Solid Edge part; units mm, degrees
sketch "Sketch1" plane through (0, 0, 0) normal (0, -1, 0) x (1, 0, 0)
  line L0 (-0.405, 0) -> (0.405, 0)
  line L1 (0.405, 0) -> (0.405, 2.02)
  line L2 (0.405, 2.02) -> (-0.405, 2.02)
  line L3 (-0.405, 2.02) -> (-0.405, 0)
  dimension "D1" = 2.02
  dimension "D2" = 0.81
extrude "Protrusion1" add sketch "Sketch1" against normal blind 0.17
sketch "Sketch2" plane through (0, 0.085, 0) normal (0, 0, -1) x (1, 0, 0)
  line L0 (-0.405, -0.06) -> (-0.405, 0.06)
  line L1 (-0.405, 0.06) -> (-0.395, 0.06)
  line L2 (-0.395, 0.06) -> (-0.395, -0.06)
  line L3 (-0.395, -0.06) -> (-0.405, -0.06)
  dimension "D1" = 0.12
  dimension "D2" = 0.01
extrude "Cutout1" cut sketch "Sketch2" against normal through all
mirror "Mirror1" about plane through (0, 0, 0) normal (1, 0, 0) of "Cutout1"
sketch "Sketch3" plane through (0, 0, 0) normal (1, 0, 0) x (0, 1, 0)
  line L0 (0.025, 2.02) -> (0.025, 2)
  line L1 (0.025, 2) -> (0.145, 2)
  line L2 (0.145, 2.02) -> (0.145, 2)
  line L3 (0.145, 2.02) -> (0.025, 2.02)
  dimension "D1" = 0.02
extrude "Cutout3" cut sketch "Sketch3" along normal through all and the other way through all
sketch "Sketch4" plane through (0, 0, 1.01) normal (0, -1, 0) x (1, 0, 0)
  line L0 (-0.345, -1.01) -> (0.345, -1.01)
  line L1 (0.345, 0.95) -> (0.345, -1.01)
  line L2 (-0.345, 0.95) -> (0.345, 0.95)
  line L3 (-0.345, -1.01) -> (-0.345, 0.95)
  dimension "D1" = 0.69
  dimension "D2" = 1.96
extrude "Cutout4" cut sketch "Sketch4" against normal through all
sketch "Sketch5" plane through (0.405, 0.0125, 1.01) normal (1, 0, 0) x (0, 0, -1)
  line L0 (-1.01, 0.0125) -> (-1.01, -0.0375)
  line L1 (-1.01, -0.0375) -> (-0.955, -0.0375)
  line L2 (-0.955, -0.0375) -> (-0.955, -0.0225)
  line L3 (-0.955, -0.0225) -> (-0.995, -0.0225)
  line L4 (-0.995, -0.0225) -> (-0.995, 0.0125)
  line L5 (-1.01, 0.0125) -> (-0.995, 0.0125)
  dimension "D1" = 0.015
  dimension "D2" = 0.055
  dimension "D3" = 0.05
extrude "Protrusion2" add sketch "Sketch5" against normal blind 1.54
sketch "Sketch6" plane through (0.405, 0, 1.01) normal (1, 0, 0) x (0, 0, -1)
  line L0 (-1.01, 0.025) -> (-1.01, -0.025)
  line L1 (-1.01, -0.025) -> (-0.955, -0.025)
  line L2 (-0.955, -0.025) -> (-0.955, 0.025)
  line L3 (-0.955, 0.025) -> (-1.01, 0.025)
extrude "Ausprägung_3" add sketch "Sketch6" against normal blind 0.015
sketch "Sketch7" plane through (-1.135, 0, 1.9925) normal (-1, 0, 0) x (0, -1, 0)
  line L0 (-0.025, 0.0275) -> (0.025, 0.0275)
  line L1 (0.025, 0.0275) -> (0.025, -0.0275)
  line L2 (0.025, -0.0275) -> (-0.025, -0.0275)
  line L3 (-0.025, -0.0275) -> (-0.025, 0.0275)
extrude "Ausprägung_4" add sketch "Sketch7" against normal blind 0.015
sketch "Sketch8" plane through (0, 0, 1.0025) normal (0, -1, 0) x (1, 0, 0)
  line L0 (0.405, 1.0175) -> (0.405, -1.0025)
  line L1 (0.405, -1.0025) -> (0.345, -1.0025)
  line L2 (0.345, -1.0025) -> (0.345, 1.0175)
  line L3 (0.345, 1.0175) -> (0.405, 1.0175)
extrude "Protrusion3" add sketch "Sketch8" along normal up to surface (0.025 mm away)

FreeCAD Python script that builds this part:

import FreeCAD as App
import Part
import Sketcher


def add_polygon(sketch, points):
    """Adds a closed chain of lines whose ends are joined by coincident constraints."""
    first, n = sketch.GeometryCount, len(points)
    for a, b in zip(points, points[1:] + points[:1]):
        sketch.addGeometry(Part.LineSegment(App.Vector(*a, 0), App.Vector(*b, 0)), False)
    for i in range(n):
        sketch.addConstraint(Sketcher.Constraint("Coincident", first + i, 2, first + (i + 1) % n, 1))

doc = App.newDocument("Part")
body = doc.addObject("PartDesign::Body", "Body")

sketch1 = body.newObject("Sketcher::SketchObject", "Sketch")
sketch1.AttachmentSupport = (doc.getObject("XZ_Plane"), [""])
sketch1.MapMode = "FlatFace"
add_polygon(sketch1, [(-0.4, 2), (-0.4, 0), (0.4, 0), (0.4, 2)])
sketch1.addConstraint(Sketcher.Constraint("Vertical", 0))
sketch1.addConstraint(Sketcher.Constraint("Horizontal", 1))
sketch1.addConstraint(Sketcher.Constraint("Vertical", 2))
sketch1.addConstraint(Sketcher.Constraint("Horizontal", 3))
sketch1.addConstraint(Sketcher.Constraint("Symmetric", 0, 2, 1, 2, -1, 1))
sketch1.addConstraint(Sketcher.Constraint("DistanceX", 0, 2, -1, 1, 0.405))
sketch1.addConstraint(Sketcher.Constraint("DistanceY", 0, 2, 0, 1, 2.02))
pad1 = body.newObject("PartDesign::Pad", "Pad")
pad1.Profile = sketch1
pad1.Length = 0.17
pad1.Reversed = True

sketch2 = body.newObject("Sketcher::SketchObject", "Sketch001")
sketch2.AttachmentSupport = (doc.getObject("XY_Plane"), [""])
sketch2.MapMode = "FlatFace"
add_polygon(sketch2, [(-0.405, 0.025), (-0.405, 0.145), (-0.395, 0.145), (-0.395, 0.025)])
sketch2.addConstraint(Sketcher.Constraint("Vertical", 0))
sketch2.addConstraint(Sketcher.Constraint("Horizontal", 1))
sketch2.addConstraint(Sketcher.Constraint("Vertical", 2))
sketch2.addConstraint(Sketcher.Constraint("Horizontal", 3))
sketch2.addConstraint(Sketcher.Constraint("DistanceX", 0, 2, -1, 1, 0.405))
sketch2.addConstraint(Sketcher.Constraint("DistanceX", 1, 2, -1, 1, 0.395))
sketch2.addConstraint(Sketcher.Constraint("DistanceY", 0, 1, 0, 2, 0.12))
sketch2.addConstraint(Sketcher.Constraint("DistanceY", -1, 1, 0, 2, 0.145))
pocket1 = body.newObject("PartDesign::Pocket", "Pocket")
pocket1.Profile = sketch2
pocket1.Type = "ThroughAll"
pocket1.Reversed = True
doc.recompute()

mirrored = body.newObject("PartDesign::Mirrored", "Mirrored")
mirrored.Originals = [pocket1]
mirrored.MirrorPlane = (doc.getObject("YZ_Plane"), [""])
body.Tip = mirrored

sketch3 = body.newObject("Sketcher::SketchObject", "Sketch002")
sketch3.AttachmentSupport = (doc.getObject("YZ_Plane"), [""])
sketch3.MapMode = "FlatFace"
add_polygon(sketch3, [(0.145, 2.02), (0.025, 2.02), (0.025, 2), (0.145, 2)])
sketch3.addConstraint(Sketcher.Constraint("Horizontal", 0))
sketch3.addConstraint(Sketcher.Constraint("Vertical", 1))
sketch3.addConstraint(Sketcher.Constraint("Horizontal", 2))
sketch3.addConstraint(Sketcher.Constraint("Vertical", 3))
sketch3.addConstraint(Sketcher.Constraint("DistanceX", -1, 1, 2, 2, 0.145))
sketch3.addConstraint(Sketcher.Constraint("DistanceY", -1, 1, 1, 2, 2.0))
sketch3.addConstraint(Sketcher.Constraint("DistanceX", 0, 2, 0, 1, 0.12))
sketch3.addConstraint(Sketcher.Constraint("DistanceY", 1, 2, 1, 1, 0.02))
pocket2 = body.newObject("PartDesign::Pocket", "Pocket001")
pocket2.Profile = sketch3
pocket2.Type = "ThroughAll"
pocket2.Midplane = True

sketch4 = body.newObject("Sketcher::SketchObject", "Sketch003")
sketch4.AttachmentSupport = (doc.getObject("XZ_Plane"), [""])
sketch4.MapMode = "FlatFace"
add_polygon(sketch4, [(-0.3, 2), (-0.3, 0), (0.3, 0), (0.3, 2)])
sketch4.addConstraint(Sketcher.Constraint("Vertical", 0))
sketch4.addConstraint(Sketcher.Constraint("Horizontal", 1))
sketch4.addConstraint(Sketcher.Constraint("Vertical", 2))
sketch4.addConstraint(Sketcher.Constraint("Horizontal", 3))
sketch4.addConstraint(Sketcher.Constraint("Symmetric", 0, 2, 1, 2, -1, 1))
sketch4.addConstraint(Sketcher.Constraint("DistanceX", 0, 2, -1, 1, 0.345))
sketch4.addConstraint(Sketcher.Constraint("DistanceY", 0, 2, 0, 1, 1.96))
pocket3 = body.newObject("PartDesign::Pocket", "Pocket002")
pocket3.Profile = sketch4
pocket3.Type = "ThroughAll"

sketch5 = body.newObject("Sketcher::SketchObject", "Sketch004")
sketch5.AttachmentSupport = (doc.getObject("YZ_Plane"), [""])
sketch5.MapMode = "FlatFace"
sketch5.AttachmentOffset = App.Placement(App.Vector(0, 0, 0.405), App.Rotation())
add_polygon(sketch5, [(0.025, 2.005), (0.025, 2.02), (-0.025, 2.02), (-0.025, 1.965), (-0.01, 1.965), (-0.01, 2.005)])
sketch5.addConstraint(Sketcher.Constraint("Vertical", 0))
sketch5.addConstraint(Sketcher.Constraint("Horizontal", 1))
sketch5.addConstraint(Sketcher.Constraint("Vertical", 2))
sketch5.addConstraint(Sketcher.Constraint("Horizontal", 3))
sketch5.addConstraint(Sketcher.Constraint("Vertical", 4))
sketch5.addConstraint(Sketcher.Constraint("Horizontal", 5))
sketch5.addConstraint(Sketcher.Constraint("Equal", 3, 0))
sketch5.addConstraint(Sketcher.Constraint("DistanceX", 1, 2, 1, 1, 0.05))
sketch5.addConstraint(Sketcher.Constraint("DistanceY", 4, 1, 4, 2, 0.04))
sketch5.addConstraint(Sketcher.Constraint("DistanceX", 3, 1, 3, 2, 0.015))
sketch5.addConstraint(Sketcher.Constraint("DistanceY", -1, 1, 0, 2, 2.02))
sketch5.addConstraint(Sketcher.Constraint("DistanceX", 3, 2, -1, 1, 0.01))
pad2 = body.newObject("PartDesign::Pad", "Pad001")
pad2.Profile = sketch5
pad2.Length = 1.54
pad2.Reversed = True

sketch6 = body.newObject("Sketcher::SketchObject", "Sketch005")
sketch6.AttachmentSupport = (doc.getObject("YZ_Plane"), [""])
sketch6.MapMode = "FlatFace"
sketch6.AttachmentOffset = App.Placement(App.Vector(0, 0, 0.405), App.Rotation())
add_polygon(sketch6, [(0.03, 1.97), (0.03, 2.02), (-0.03, 2.02), (-0.03, 1.97)])
sketch6.addConstraint(Sketcher.Constraint("Vertical", 0))
sketch6.addConstraint(Sketcher.Constraint("Horizontal", 1))
sketch6.addConstraint(Sketcher.Constraint("Vertical", 2))
sketch6.addConstraint(Sketcher.Constraint("Horizontal", 3))
sketch6.addConstraint(Sketcher.Constraint("DistanceX", 1, 2, 1, 1, 0.05))
sketch6.addConstraint(Sketcher.Constraint("DistanceY", 0, 1, 0, 2, 0.055))
sketch6.addConstraint(Sketcher.Constraint("DistanceY", -1, 1, 0, 2, 2.02))
sketch6.addConstraint(Sketcher.Constraint("DistanceX", -1, 1, 0, 2, 0.025))
pad3 = body.newObject("PartDesign::Pad", "Pad002")
pad3.Profile = sketch6
pad3.Length = 0.015
pad3.Reversed = True

sketch7 = body.newObject("Sketcher::SketchObject", "Sketch006")
sketch7.AttachmentSupport = (doc.getObject("YZ_Plane"), [""])
sketch7.MapMode = "FlatFace"
sketch7.AttachmentOffset = App.Placement(App.Vector(0, 0, -1.135), App.Rotation())
add_polygon(sketch7, [(-0.03, 2.02), (0.03, 2.02), (0.03, 1.97), (-0.03, 1.97)])
sketch7.addConstraint(Sketcher.Constraint("Horizontal", 0))
sketch7.addConstraint(Sketcher.Constraint("Vertical", 1))
sketch7.addConstraint(Sketcher.Constraint("Horizontal", 2))
sketch7.addConstraint(Sketcher.Constraint("Vertical", 3))
sketch7.addConstraint(Sketcher.Constraint("DistanceX", 0, 1, 0, 2, 0.05))
sketch7.addConstraint(Sketcher.Constraint("DistanceY", 1, 2, 1, 1, 0.055))
sketch7.addConstraint(Sketcher.Constraint("DistanceY", -1, 1, 0, 2, 2.02))
sketch7.addConstraint(Sketcher.Constraint("DistanceX", -1, 1, 0, 2, 0.025))
pad4 = body.newObject("PartDesign::Pad", "Pad003")
pad4.Profile = sketch7
pad4.Length = 0.015

sketch8 = body.newObject("Sketcher::SketchObject", "Sketch007")
sketch8.AttachmentSupport = (doc.getObject("XZ_Plane"), [""])
sketch8.MapMode = "FlatFace"
add_polygon(sketch8, [(0.41, 0), (0.41, 2.02), (0.34, 2.02), (0.34, 0)])
sketch8.addConstraint(Sketcher.Constraint("Vertical", 0))
sketch8.addConstraint(Sketcher.Constraint("Horizontal", 1))
sketch8.addConstraint(Sketcher.Constraint("Vertical", 2))
sketch8.addConstraint(Sketcher.Constraint("Horizontal", 3))
sketch8.addConstraint(Sketcher.Constraint("PointOnObject", 2, 2, -1))
sketch8.addConstraint(Sketcher.Constraint("DistanceX", 1, 2, 1, 1, 0.06))
sketch8.addConstraint(Sketcher.Constraint("DistanceY", 0, 1, 0, 2, 2.02))
sketch8.addConstraint(Sketcher.Constraint("DistanceX", -1, 1, 0, 2, 0.405))
pad5 = body.newObject("PartDesign::Pad", "Pad004")
pad5.Profile = sketch8
pad5.Length = 0.025

doc.recompute()
